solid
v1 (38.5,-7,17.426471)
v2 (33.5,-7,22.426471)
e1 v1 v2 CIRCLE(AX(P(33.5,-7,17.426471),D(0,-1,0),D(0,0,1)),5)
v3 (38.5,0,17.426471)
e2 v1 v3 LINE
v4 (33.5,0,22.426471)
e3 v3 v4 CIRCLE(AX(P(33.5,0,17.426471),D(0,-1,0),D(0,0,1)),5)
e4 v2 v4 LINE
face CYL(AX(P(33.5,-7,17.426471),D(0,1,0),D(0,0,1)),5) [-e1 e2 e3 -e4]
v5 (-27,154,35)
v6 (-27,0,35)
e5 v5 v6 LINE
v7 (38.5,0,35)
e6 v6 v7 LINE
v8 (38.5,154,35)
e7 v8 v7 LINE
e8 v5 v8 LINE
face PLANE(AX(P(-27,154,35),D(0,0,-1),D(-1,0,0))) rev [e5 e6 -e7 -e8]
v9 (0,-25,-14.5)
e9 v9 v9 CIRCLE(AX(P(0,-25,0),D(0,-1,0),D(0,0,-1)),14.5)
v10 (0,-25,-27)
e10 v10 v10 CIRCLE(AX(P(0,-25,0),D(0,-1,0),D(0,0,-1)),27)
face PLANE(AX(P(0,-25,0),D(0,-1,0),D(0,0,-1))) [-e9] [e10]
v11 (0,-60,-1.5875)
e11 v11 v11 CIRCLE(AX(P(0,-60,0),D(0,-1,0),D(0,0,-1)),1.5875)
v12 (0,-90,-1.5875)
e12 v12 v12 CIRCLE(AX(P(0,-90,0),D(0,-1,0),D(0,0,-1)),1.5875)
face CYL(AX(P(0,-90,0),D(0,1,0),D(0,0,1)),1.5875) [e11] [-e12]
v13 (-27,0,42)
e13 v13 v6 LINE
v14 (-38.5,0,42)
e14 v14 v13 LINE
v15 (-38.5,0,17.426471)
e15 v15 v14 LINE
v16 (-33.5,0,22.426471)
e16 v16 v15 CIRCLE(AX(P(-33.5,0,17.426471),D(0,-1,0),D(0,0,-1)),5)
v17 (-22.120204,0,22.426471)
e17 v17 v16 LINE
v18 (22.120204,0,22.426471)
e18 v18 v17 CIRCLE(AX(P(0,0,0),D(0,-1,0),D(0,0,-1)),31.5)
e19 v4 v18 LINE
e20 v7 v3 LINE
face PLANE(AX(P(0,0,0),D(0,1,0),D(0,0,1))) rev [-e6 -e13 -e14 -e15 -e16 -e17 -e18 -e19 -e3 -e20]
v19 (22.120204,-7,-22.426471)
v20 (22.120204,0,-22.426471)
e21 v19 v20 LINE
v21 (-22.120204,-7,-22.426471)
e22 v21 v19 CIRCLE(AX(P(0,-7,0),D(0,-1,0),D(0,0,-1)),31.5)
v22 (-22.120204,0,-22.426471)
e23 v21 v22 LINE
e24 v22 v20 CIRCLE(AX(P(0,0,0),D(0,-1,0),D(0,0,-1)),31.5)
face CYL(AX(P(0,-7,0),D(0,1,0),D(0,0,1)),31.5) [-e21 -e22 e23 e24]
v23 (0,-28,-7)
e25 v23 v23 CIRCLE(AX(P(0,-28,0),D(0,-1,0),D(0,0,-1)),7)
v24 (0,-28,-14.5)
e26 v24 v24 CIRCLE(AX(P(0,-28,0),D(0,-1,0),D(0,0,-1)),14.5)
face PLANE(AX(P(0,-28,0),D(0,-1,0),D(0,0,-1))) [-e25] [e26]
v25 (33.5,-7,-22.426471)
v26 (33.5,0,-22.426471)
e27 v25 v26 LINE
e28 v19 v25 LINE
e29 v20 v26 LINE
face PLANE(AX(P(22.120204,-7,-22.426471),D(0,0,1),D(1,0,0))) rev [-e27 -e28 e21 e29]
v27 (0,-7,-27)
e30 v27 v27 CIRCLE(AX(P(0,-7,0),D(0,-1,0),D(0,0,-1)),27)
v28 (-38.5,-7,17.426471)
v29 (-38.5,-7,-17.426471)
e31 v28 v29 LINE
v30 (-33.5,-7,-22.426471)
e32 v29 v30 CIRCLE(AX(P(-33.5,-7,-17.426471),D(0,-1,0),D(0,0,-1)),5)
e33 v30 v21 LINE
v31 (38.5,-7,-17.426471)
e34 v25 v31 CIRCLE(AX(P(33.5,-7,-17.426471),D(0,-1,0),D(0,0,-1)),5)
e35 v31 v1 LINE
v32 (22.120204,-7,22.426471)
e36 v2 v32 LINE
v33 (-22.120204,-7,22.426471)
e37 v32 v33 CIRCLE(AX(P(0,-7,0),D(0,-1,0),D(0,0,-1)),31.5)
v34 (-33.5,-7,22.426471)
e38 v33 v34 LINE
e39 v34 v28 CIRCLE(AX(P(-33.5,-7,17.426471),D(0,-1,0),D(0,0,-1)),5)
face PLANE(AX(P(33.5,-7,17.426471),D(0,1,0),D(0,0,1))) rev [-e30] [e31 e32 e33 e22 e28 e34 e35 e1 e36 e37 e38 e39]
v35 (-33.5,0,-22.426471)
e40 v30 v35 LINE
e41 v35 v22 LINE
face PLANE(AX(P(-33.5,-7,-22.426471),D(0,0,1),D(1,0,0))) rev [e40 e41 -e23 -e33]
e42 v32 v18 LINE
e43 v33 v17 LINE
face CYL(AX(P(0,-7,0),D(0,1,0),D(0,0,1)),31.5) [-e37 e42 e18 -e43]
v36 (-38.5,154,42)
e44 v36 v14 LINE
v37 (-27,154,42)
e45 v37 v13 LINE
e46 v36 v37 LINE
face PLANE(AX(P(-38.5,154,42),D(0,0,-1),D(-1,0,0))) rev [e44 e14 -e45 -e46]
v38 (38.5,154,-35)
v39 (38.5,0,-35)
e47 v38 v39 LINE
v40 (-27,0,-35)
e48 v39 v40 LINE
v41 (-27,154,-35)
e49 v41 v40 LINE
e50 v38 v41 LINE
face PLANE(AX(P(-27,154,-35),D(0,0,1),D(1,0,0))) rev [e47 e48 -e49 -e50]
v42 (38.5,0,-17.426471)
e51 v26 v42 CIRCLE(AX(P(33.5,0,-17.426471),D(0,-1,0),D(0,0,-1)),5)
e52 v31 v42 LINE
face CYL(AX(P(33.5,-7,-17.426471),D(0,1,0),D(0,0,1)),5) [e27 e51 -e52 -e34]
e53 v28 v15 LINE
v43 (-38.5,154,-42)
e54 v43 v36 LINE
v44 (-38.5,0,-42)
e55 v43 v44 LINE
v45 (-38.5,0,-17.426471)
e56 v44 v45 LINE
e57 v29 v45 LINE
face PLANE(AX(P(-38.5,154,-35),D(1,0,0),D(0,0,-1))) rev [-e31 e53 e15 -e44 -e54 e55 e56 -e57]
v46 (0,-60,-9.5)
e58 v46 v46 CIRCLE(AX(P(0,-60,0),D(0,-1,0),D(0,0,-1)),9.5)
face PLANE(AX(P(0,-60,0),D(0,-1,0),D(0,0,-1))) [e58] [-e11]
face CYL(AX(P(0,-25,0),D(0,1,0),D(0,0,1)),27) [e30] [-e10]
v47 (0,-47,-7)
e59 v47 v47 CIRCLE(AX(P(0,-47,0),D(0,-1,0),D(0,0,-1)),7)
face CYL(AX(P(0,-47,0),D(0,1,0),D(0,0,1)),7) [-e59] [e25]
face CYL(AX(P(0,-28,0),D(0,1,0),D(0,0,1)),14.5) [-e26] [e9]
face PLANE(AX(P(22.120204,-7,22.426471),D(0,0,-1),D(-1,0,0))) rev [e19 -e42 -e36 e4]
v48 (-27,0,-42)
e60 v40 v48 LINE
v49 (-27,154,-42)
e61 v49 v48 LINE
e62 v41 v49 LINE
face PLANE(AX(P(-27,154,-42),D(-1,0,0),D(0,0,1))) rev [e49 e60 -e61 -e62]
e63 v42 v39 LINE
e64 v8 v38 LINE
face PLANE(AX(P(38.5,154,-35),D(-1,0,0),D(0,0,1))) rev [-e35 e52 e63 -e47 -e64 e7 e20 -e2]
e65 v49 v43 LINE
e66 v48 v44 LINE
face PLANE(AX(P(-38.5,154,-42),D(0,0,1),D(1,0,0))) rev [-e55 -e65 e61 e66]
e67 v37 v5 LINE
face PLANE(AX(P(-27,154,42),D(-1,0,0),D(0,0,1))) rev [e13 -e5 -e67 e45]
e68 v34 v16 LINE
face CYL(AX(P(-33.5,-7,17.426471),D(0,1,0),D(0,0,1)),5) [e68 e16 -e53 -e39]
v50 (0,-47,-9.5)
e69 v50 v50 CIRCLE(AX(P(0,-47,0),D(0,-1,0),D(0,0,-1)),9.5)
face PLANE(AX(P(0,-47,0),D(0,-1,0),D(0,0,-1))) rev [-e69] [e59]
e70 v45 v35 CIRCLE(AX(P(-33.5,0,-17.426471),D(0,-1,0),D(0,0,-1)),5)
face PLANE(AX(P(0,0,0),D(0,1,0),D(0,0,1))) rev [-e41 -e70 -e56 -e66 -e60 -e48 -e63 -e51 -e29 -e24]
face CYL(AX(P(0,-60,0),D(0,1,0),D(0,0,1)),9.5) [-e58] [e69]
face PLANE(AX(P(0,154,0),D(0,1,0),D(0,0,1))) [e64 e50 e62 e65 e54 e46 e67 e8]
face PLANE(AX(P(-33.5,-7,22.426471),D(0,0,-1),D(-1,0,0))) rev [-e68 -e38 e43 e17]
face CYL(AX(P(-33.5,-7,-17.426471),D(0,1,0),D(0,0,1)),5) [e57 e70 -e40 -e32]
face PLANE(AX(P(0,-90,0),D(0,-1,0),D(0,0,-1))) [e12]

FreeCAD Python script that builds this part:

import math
import FreeCAD as App
import Part
import Sketcher

doc = App.newDocument("Part")
body = doc.addObject("PartDesign::Body", "Body")

sketch1 = body.newObject("Sketcher::SketchObject", "Sketch")
sketch1.AttachmentSupport = (doc.getObject("XZ_Plane"), [""])
sketch1.MapMode = "FlatFace"
sketch1.addGeometry(Part.LineSegment(App.Vector(-38, 42, 0), App.Vector(-27, 42, 0)), False)
sketch1.addGeometry(Part.LineSegment(App.Vector(-27, 42, 0), App.Vector(-27, 35, 0)), False)
sketch1.addGeometry(Part.LineSegment(App.Vector(-27, 35, 0), App.Vector(38, 35, 0)), False)
sketch1.addGeometry(Part.LineSegment(App.Vector(38, 35, 0), App.Vector(38, -35, 0)), False)
sketch1.addGeometry(Part.LineSegment(App.Vector(38, -35, 0), App.Vector(-27, -35, 0)), False)
sketch1.addGeometry(Part.LineSegment(App.Vector(-27, -35, 0), App.Vector(-27, -42, 0)), False)
sketch1.addGeometry(Part.LineSegment(App.Vector(-27, -42, 0), App.Vector(-38, -42, 0)), False)
sketch1.addGeometry(Part.LineSegment(App.Vector(-38, -42, 0), App.Vector(-38, 42, 0)), False)
sketch1.addConstraint(Sketcher.Constraint("Coincident", 0, 2, 1, 1))
sketch1.addConstraint(Sketcher.Constraint("Coincident", 1, 2, 2, 1))
sketch1.addConstraint(Sketcher.Constraint("Coincident", 2, 2, 3, 1))
sketch1.addConstraint(Sketcher.Constraint("Coincident", 3, 2, 4, 1))
sketch1.addConstraint(Sketcher.Constraint("Coincident", 4, 2, 5, 1))
sketch1.addConstraint(Sketcher.Constraint("Coincident", 5, 2, 6, 1))
sketch1.addConstraint(Sketcher.Constraint("Coincident", 6, 2, 7, 1))
sketch1.addConstraint(Sketcher.Constraint("Coincident", 7, 2, 0, 1))
sketch1.addConstraint(Sketcher.Constraint("Horizontal", 0))
sketch1.addConstraint(Sketcher.Constraint("Vertical", 1))
sketch1.addConstraint(Sketcher.Constraint("Horizontal", 2))
sketch1.addConstraint(Sketcher.Constraint("Vertical", 3))
sketch1.addConstraint(Sketcher.Constraint("Horizontal", 4))
sketch1.addConstraint(Sketcher.Constraint("Vertical", 5))
sketch1.addConstraint(Sketcher.Constraint("Horizontal", 6))
sketch1.addConstraint(Sketcher.Constraint("Vertical", 7))
sketch1.addConstraint(Sketcher.Constraint("Symmetric", 1, 2, 4, 2, -1))
sketch1.addConstraint(Sketcher.Constraint("Equal", 1, 5))
sketch1.addConstraint(Sketcher.Constraint("DistanceY", 1, 2, 1, 1, 7.0))
sketch1.addConstraint(Sketcher.Constraint("DistanceY", 3, 2, 3, 1, 70.0))
sketch1.addConstraint(Sketcher.Constraint("DistanceX", 0, 1, 0, 2, 11.5))
sketch1.addConstraint(Sketcher.Constraint("DistanceX", 2, 1, 2, 2, 65.5))
sketch1.addConstraint(Sketcher.Constraint("DistanceX", 0, 2, -1, 1, 27.0))
pad1 = body.newObject("PartDesign::Pad", "Pad")
pad1.Profile = sketch1
pad1.Length = 154
pad1.Reversed = True

sketch2 = body.newObject("Sketcher::SketchObject", "Sketch001")
sketch2.AttachmentSupport = (doc.getObject("XZ_Plane"), [""])
sketch2.MapMode = "FlatFace"
sketch2.addGeometry(Part.LineSegment(App.Vector(-22, 22, 0), App.Vector(-34, 22, 0)), False)
sketch2.addGeometry(Part.ArcOfCircle(Part.Circle(App.Vector(-34, 17, 0), App.Vector(0, 0, 1), 5), math.radians(90), math.radians(180)), False)
sketch2.addGeometry(Part.LineSegment(App.Vector(-38, 17, 0), App.Vector(-38, -17, 0)), False)
sketch2.addGeometry(Part.ArcOfCircle(Part.Circle(App.Vector(-34, -17, 0), App.Vector(0, 0, 1), 5), math.radians(180), math.radians(270)), False)
sketch2.addGeometry(Part.LineSegment(App.Vector(-34, -22, 0), App.Vector(-22, -22, 0)), False)
sketch2.addGeometry(Part.ArcOfCircle(Part.Circle(App.Vector(0, 0, 0), App.Vector(0, 0, 1), 31), math.radians(-135), math.radians(-45)), False)
sketch2.addGeometry(Part.LineSegment(App.Vector(22, -22, 0), App.Vector(34, -22, 0)), False)
sketch2.addGeometry(Part.ArcOfCircle(Part.Circle(App.Vector(34, -17, 0), App.Vector(0, 0, 1), 5), math.radians(-90), math.radians(0)), False)
sketch2.addGeometry(Part.LineSegment(App.Vector(38, -17, 0), App.Vector(38, 17, 0)), False)
sketch2.addGeometry(Part.ArcOfCircle(Part.Circle(App.Vector(34, 17, 0), App.Vector(0, 0, 1), 5), math.radians(0), math.radians(90)), False)
sketch2.addGeometry(Part.LineSegment(App.Vector(34, 22, 0), App.Vector(22, 22, 0)), False)
sketch2.addGeometry(Part.ArcOfCircle(Part.Circle(App.Vector(0, 0, 0), App.Vector(0, 0, 1), 31), math.radians(45), math.radians(135)), False)
sketch2.addConstraint(Sketcher.Constraint("Tangent", 0, 2, 1, 1))
sketch2.addConstraint(Sketcher.Constraint("Tangent", 1, 2, 2, 1))
sketch2.addConstraint(Sketcher.Constraint("Tangent", 2, 2, 3, 1))
sketch2.addConstraint(Sketcher.Constraint("Tangent", 3, 2, 4, 1))
sketch2.addConstraint(Sketcher.Constraint("Coincident", 4, 2, 5, 1))
sketch2.addConstraint(Sketcher.Constraint("Coincident", 5, 2, 6, 1))
sketch2.addConstraint(Sketcher.Constraint("Tangent", 6, 2, 7, 1))
sketch2.addConstraint(Sketcher.Constraint("Tangent", 7, 2, 8, 1))
sketch2.addConstraint(Sketcher.Constraint("Tangent", 8, 2, 9, 1))
sketch2.addConstraint(Sketcher.Constraint("Tangent", 9, 2, 10, 1))
sketch2.addConstraint(Sketcher.Constraint("Coincident", 10, 2, 11, 1))
sketch2.addConstraint(Sketcher.Constraint("Coincident", 11, 2, 0, 1))
sketch2.addConstraint(Sketcher.Constraint("Horizontal", 0))
sketch2.addConstraint(Sketcher.Constraint("Vertical", 2))
sketch2.addConstraint(Sketcher.Constraint("Horizontal", 4))
sketch2.addConstraint(Sketcher.Constraint("Horizontal", 6))
sketch2.addConstraint(Sketcher.Constraint("Vertical", 8))
sketch2.addConstraint(Sketcher.Constraint("Horizontal", 10))
sketch2.addConstraint(Sketcher.Constraint("Coincident", 5, 3, -1, 1))
sketch2.addConstraint(Sketcher.Constraint("Coincident", 11, 3, -1, 1))
sketch2.addConstraint(Sketcher.Constraint("Equal", 1, 3))
sketch2.addConstraint(Sketcher.Constraint("Equal", 3, 7))
sketch2.addConstraint(Sketcher.Constraint("Equal", 7, 9))
sketch2.addConstraint(Sketcher.Constraint("Equal", 5, 11))
sketch2.addConstraint(Sketcher.Constraint("Symmetric", 1, 3, 7, 3, -1, 1))
sketch2.addConstraint(Sketcher.Constraint("Horizontal", 3, 3, 7, 3))
sketch2.addConstraint(Sketcher.Constraint("Horizontal", 1, 3, 9, 3))
sketch2.addConstraint(Sketcher.Constraint("Radius", 1, 5.0))
sketch2.addConstraint(Sketcher.Constraint("Radius", 5, 31.5))
sketch2.addConstraint(Sketcher.Constraint("DistanceX", 3, 3, 7, 3, 67.0))
sketch2.addConstraint(Sketcher.Constraint("DistanceY", 2, 2, 2, 1, 34.852941))
pad2 = body.newObject("PartDesign::Pad", "Pad001")
pad2.Profile = sketch2
pad2.Length = 7

sketch3 = body.newObject("Sketcher::SketchObject", "Sketch002")
sketch3.AttachmentSupport = (doc.getObject("XZ_Plane"), [""])
sketch3.MapMode = "FlatFace"
sketch3.AttachmentOffset = App.Placement(App.Vector(0, 0, 7), App.Rotation())
sketch3.addGeometry(Part.Circle(App.Vector(0, 0, 0), App.Vector(0, 0, 1), 27), False)
sketch3.addConstraint(Sketcher.Constraint("Coincident", 0, 3, -1, 1))
sketch3.addConstraint(Sketcher.Constraint("Diameter", 0, 54.0))
pad3 = body.newObject("PartDesign::Pad", "Pad002")
pad3.Profile = sketch3
pad3.Length = 18

sketch4 = body.newObject("Sketcher::SketchObject", "Sketch003")
sketch4.AttachmentSupport = (doc.getObject("XZ_Plane"), [""])
sketch4.MapMode = "FlatFace"
sketch4.AttachmentOffset = App.Placement(App.Vector(0, 0, 25), App.Rotation())
sketch4.addGeometry(Part.Circle(App.Vector(0, 0, 0), App.Vector(0, 0, 1), 14), False)
sketch4.addConstraint(Sketcher.Constraint("Coincident", 0, 3, -1, 1))
sketch4.addConstraint(Sketcher.Constraint("Diameter", 0, 29.0))
pad4 = body.newObject("PartDesign::Pad", "Pad003")
pad4.Profile = sketch4
pad4.Length = 3

sketch5 = body.newObject("Sketcher::SketchObject", "Sketch004")
sketch5.AttachmentSupport = (doc.getObject("XZ_Plane"), [""])
sketch5.MapMode = "FlatFace"
sketch5.AttachmentOffset = App.Placement(App.Vector(0, 0, 28), App.Rotation())
sketch5.addGeometry(Part.Circle(App.Vector(0, 0, 0), App.Vector(0, 0, 1), 7), False)
sketch5.addConstraint(Sketcher.Constraint("Coincident", 0, 3, -1, 1))
sketch5.addConstraint(Sketcher.Constraint("Diameter", 0, 14.0))
pad5 = body.newObject("PartDesign::Pad", "Pad004")
pad5.Profile = sketch5
pad5.Length = 19

sketch6 = body.newObject("Sketcher::SketchObject", "Sketch005")
sketch6.AttachmentSupport = (doc.getObject("XZ_Plane"), [""])
sketch6.MapMode = "FlatFace"
sketch6.AttachmentOffset = App.Placement(App.Vector(0, 0, 47), App.Rotation())
sketch6.addGeometry(Part.Circle(App.Vector(0, 0, 0), App.Vector(0, 0, 1), 10), False)
sketch6.addConstraint(Sketcher.Constraint("Coincident", 0, 3, -1, 1))
sketch6.addConstraint(Sketcher.Constraint("Diameter", 0, 19.0))
pad6 = body.newObject("PartDesign::Pad", "Pad005")
pad6.Profile = sketch6
pad6.Length = 13

sketch7 = body.newObject("Sketcher::SketchObject", "Sketch006")
sketch7.AttachmentSupport = (doc.getObject("XZ_Plane"), [""])
sketch7.MapMode = "FlatFace"
sketch7.AttachmentOffset = App.Placement(App.Vector(0, 0, 60), App.Rotation())
sketch7.addGeometry(Part.Circle(App.Vector(0, 0, 0), App.Vector(0, 0, 1), 1.6), False)
sketch7.addConstraint(Sketcher.Constraint("Coincident", 0, 3, -1, 1))
sketch7.addConstraint(Sketcher.Constraint("Diameter", 0, 3.175))
pad7 = body.newObject("PartDesign::Pad", "Pad006")
pad7.Profile = sketch7
pad7.Length = 30

doc.recompute()
